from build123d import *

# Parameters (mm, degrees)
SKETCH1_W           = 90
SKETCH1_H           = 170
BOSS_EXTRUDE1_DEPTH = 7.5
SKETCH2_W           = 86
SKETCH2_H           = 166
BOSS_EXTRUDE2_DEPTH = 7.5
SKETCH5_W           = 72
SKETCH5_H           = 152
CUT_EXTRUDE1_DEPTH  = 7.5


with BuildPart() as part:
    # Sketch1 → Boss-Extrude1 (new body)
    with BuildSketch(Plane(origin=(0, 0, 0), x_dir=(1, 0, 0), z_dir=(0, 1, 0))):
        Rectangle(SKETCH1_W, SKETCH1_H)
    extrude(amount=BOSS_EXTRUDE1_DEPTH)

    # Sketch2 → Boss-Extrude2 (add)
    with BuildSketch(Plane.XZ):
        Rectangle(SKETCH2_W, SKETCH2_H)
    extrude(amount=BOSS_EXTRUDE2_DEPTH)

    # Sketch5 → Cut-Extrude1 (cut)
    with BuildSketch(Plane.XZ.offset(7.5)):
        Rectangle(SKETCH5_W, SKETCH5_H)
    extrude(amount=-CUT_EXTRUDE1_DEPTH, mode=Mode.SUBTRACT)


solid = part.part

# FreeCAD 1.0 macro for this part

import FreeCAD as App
import Part
import Sketcher
Q = App.Units.Quantity


def add_polygon(sketch, points):
    """Adds a closed chain of lines whose ends are joined by coincident constraints."""
    first, n = sketch.GeometryCount, len(points)
    for a, b in zip(points, points[1:] + points[:1]):
        sketch.addGeometry(Part.LineSegment(App.Vector(*a, 0), App.Vector(*b, 0)), False)
    for i in range(n):
        sketch.addConstraint(Sketcher.Constraint("Coincident", first + i, 2, first + (i + 1) % n, 1))

doc = App.newDocument("Part")
body = doc.addObject("PartDesign::Body", "Body")

# Sketch on XZ plane
sketch1 = doc.addObject("Sketcher::SketchObject", "Sketch")
body.addObject(sketch1)
sketch1.AttachmentSupport = (doc.XZ_Plane, [""])
sketch1.MapMode = "FlatFace"
add_polygon(sketch1, [(-45, -85), (-45, 85), (45, 85), (45, -85)])  # lines 0-3
sketch1.addConstraint([
    Sketcher.Constraint("Vertical", 0),
    Sketcher.Constraint("Horizontal", 1),
    Sketcher.Constraint("Vertical", 2),
    Sketcher.Constraint("Horizontal", 3),
    Sketcher.Constraint("Symmetric", 0, 2, 2, 2, -1, 1),
    Sketcher.Constraint("DistanceX", 1, 1, 1, 2, Q("90 mm")),
    Sketcher.Constraint("DistanceY", 0, 1, 0, 2, Q("170 mm")),
])
pad1 = doc.addObject("PartDesign::Pad", "Pad")
body.addObject(pad1)
pad1.Profile = sketch1
pad1.Length = 7.5
pad1.Reversed = True

# Sketch on XZ plane
sketch2 = doc.addObject("Sketcher::SketchObject", "Sketch001")
body.addObject(sketch2)
sketch2.AttachmentSupport = (doc.XZ_Plane, [""])
sketch2.MapMode = "FlatFace"
add_polygon(sketch2, [(-43, 83), (-43, -83), (43, -83), (43, 83)])  # lines 0-3
sketch2.addConstraint([
    Sketcher.Constraint("Vertical", 0),
    Sketcher.Constraint("Horizontal", 1),
    Sketcher.Constraint("Vertical", 2),
    Sketcher.Constraint("Horizontal", 3),
    Sketcher.Constraint("Symmetric", 0, 2, 2, 2, -1, 1),
    Sketcher.Constraint("DistanceX", 1, 1, 1, 2, Q("86 mm")),
    Sketcher.Constraint("DistanceY", 0, 2, 0, 1, Q("166 mm")),
])
pad2 = doc.addObject("PartDesign::Pad", "Pad001")
body.addObject(pad2)
pad2.Profile = sketch2
pad2.Length = 7.5

# Sketch on XZ plane
sketch3 = doc.addObject("Sketcher::SketchObject", "Sketch002")
body.addObject(sketch3)
sketch3.AttachmentSupport = (doc.XZ_Plane, [""])
sketch3.MapMode = "FlatFace"
sketch3.AttachmentOffset = App.Placement(App.Vector(0, 0, 7.5), App.Rotation())
add_polygon(sketch3, [(-36, 76), (-36, -76), (36, -76), (36, 76)])  # lines 0-3
sketch3.addConstraint([
    Sketcher.Constraint("Vertical", 0),
    Sketcher.Constraint("Horizontal", 1),
    Sketcher.Constraint("Vertical", 2),
    Sketcher.Constraint("Horizontal", 3),
    Sketcher.Constraint("Symmetric", 0, 2, 2, 2, -1, 1),
    Sketcher.Constraint("DistanceX", 1, 1, 1, 2, Q("72 mm")),
    Sketcher.Constraint("DistanceY", 0, 2, 0, 1, Q("152 mm")),
])
pocket1 = doc.addObject("PartDesign::Pocket", "Pocket")
body.addObject(pocket1)
pocket1.Profile = sketch3
pocket1.Length = 7.5

doc.recompute()
